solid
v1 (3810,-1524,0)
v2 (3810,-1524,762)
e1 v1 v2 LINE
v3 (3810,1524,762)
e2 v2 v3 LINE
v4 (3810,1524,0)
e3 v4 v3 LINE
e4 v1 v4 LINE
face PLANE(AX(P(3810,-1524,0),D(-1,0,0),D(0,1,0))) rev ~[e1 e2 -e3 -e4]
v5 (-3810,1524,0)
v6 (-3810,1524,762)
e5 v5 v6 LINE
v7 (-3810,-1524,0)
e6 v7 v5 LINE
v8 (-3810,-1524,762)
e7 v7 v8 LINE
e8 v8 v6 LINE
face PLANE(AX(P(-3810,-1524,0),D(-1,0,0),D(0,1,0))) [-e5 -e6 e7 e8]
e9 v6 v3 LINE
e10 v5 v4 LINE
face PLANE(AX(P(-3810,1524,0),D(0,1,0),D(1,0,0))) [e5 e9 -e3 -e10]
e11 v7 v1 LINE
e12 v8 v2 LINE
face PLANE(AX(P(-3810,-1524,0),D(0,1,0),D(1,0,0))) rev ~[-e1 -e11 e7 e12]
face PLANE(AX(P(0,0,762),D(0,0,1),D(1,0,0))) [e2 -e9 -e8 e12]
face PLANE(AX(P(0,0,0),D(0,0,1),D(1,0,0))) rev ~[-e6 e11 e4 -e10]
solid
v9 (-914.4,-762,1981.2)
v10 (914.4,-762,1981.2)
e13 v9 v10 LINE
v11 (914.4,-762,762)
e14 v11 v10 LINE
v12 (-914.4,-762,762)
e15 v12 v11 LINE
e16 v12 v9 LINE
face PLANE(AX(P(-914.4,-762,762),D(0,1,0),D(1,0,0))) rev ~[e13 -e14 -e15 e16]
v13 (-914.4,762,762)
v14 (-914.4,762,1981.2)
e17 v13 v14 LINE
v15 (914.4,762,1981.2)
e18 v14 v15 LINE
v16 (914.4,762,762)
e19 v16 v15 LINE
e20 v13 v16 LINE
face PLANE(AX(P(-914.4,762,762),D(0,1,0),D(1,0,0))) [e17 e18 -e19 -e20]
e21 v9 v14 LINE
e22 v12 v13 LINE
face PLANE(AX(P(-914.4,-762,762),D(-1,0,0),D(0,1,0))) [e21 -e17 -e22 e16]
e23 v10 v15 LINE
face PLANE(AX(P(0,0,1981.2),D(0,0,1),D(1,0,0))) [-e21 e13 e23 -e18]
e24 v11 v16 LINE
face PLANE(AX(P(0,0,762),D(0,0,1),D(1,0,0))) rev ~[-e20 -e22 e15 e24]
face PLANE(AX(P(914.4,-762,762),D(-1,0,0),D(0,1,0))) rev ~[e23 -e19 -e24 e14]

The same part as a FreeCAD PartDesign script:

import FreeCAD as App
import Part
import Sketcher
Q = App.Units.Quantity

doc = App.newDocument("Part")
body = doc.addObject("PartDesign::Body", "Body")

sketch1 = doc.addObject("Sketcher::SketchObject", "Sketch")
body.addObject(sketch1)
sketch1.AttachmentSupport = (doc.XY_Plane, [""])
sketch1.MapMode = "FlatFace"
sketch1.addGeometry(Part.LineSegment(App.Vector(-3810, 1524, 0), App.Vector(-3810, -1524, 0)), False)
sketch1.addGeometry(Part.LineSegment(App.Vector(-3810, -1524, 0), App.Vector(3810, -1524, 0)), False)
sketch1.addGeometry(Part.LineSegment(App.Vector(3810, -1524, 0), App.Vector(3810, 1524, 0)), False)
sketch1.addGeometry(Part.LineSegment(App.Vector(3810, 1524, 0), App.Vector(-3810, 1524, 0)), False)
sketch1.addConstraint(Sketcher.Constraint("Coincident", 0, 2, 1, 1))
sketch1.addConstraint(Sketcher.Constraint("Coincident", 1, 2, 2, 1))
sketch1.addConstraint(Sketcher.Constraint("Coincident", 2, 2, 3, 1))
sketch1.addConstraint(Sketcher.Constraint("Coincident", 3, 2, 0, 1))
sketch1.addConstraint(Sketcher.Constraint("Vertical", 0))
sketch1.addConstraint(Sketcher.Constraint("Horizontal", 1))
sketch1.addConstraint(Sketcher.Constraint("Vertical", 2))
sketch1.addConstraint(Sketcher.Constraint("Horizontal", 3))
sketch1.addConstraint(Sketcher.Constraint("Symmetric", 0, 2, 2, 2, -1, 1))
sketch1.addConstraint(Sketcher.Constraint("DistanceX", 1, 1, 1, 2, Q("300 in")))
sketch1.addConstraint(Sketcher.Constraint("DistanceY", 0, 2, 0, 1, Q("120 in")))
pad1 = doc.addObject("PartDesign::Pad", "Pad")
body.addObject(pad1)
pad1.Profile = sketch1
pad1.Length = Q("30 in")
body2 = doc.addObject("PartDesign::Body", "Body001")

sketch2 = doc.addObject("Sketcher::SketchObject", "Sketch001")
body2.addObject(sketch2)
sketch2.AttachmentSupport = (doc.getObject("XY_Plane001"), [""])
sketch2.MapMode = "FlatFace"
sketch2.AttachmentOffset = App.Placement(App.Vector(0, 0, 30 * 25.4), App.Rotation())
sketch2.addGeometry(Part.LineSegment(App.Vector(-914, 762, 0), App.Vector(-914, -762, 0)), False)
sketch2.addGeometry(Part.LineSegment(App.Vector(-914, -762, 0), App.Vector(914, -762, 0)), False)
sketch2.addGeometry(Part.LineSegment(App.Vector(914, -762, 0), App.Vector(914, 762, 0)), False)
sketch2.addGeometry(Part.LineSegment(App.Vector(914, 762, 0), App.Vector(-914, 762, 0)), False)
sketch2.addConstraint(Sketcher.Constraint("Coincident", 0, 2, 1, 1))
sketch2.addConstraint(Sketcher.Constraint("Coincident", 1, 2, 2, 1))
sketch2.addConstraint(Sketcher.Constraint("Coincident", 2, 2, 3, 1))
sketch2.addConstraint(Sketcher.Constraint("Coincident", 3, 2, 0, 1))
sketch2.addConstraint(Sketcher.Constraint("Vertical", 0))
sketch2.addConstraint(Sketcher.Constraint("Horizontal", 1))
sketch2.addConstraint(Sketcher.Constraint("Vertical", 2))
sketch2.addConstraint(Sketcher.Constraint("Horizontal", 3))
sketch2.addConstraint(Sketcher.Constraint("Symmetric", 0, 2, 2, 2, -1, 1))
sketch2.addConstraint(Sketcher.Constraint("DistanceX", 1, 1, 1, 2, Q("72 in")))
sketch2.addConstraint(Sketcher.Constraint("DistanceY", 0, 2, 0, 1, Q("60 in")))
pad2 = doc.addObject("PartDesign::Pad", "Pad001")
body2.addObject(pad2)
pad2.Profile = sketch2
pad2.Length = Q("48 in")

doc.recompute()
